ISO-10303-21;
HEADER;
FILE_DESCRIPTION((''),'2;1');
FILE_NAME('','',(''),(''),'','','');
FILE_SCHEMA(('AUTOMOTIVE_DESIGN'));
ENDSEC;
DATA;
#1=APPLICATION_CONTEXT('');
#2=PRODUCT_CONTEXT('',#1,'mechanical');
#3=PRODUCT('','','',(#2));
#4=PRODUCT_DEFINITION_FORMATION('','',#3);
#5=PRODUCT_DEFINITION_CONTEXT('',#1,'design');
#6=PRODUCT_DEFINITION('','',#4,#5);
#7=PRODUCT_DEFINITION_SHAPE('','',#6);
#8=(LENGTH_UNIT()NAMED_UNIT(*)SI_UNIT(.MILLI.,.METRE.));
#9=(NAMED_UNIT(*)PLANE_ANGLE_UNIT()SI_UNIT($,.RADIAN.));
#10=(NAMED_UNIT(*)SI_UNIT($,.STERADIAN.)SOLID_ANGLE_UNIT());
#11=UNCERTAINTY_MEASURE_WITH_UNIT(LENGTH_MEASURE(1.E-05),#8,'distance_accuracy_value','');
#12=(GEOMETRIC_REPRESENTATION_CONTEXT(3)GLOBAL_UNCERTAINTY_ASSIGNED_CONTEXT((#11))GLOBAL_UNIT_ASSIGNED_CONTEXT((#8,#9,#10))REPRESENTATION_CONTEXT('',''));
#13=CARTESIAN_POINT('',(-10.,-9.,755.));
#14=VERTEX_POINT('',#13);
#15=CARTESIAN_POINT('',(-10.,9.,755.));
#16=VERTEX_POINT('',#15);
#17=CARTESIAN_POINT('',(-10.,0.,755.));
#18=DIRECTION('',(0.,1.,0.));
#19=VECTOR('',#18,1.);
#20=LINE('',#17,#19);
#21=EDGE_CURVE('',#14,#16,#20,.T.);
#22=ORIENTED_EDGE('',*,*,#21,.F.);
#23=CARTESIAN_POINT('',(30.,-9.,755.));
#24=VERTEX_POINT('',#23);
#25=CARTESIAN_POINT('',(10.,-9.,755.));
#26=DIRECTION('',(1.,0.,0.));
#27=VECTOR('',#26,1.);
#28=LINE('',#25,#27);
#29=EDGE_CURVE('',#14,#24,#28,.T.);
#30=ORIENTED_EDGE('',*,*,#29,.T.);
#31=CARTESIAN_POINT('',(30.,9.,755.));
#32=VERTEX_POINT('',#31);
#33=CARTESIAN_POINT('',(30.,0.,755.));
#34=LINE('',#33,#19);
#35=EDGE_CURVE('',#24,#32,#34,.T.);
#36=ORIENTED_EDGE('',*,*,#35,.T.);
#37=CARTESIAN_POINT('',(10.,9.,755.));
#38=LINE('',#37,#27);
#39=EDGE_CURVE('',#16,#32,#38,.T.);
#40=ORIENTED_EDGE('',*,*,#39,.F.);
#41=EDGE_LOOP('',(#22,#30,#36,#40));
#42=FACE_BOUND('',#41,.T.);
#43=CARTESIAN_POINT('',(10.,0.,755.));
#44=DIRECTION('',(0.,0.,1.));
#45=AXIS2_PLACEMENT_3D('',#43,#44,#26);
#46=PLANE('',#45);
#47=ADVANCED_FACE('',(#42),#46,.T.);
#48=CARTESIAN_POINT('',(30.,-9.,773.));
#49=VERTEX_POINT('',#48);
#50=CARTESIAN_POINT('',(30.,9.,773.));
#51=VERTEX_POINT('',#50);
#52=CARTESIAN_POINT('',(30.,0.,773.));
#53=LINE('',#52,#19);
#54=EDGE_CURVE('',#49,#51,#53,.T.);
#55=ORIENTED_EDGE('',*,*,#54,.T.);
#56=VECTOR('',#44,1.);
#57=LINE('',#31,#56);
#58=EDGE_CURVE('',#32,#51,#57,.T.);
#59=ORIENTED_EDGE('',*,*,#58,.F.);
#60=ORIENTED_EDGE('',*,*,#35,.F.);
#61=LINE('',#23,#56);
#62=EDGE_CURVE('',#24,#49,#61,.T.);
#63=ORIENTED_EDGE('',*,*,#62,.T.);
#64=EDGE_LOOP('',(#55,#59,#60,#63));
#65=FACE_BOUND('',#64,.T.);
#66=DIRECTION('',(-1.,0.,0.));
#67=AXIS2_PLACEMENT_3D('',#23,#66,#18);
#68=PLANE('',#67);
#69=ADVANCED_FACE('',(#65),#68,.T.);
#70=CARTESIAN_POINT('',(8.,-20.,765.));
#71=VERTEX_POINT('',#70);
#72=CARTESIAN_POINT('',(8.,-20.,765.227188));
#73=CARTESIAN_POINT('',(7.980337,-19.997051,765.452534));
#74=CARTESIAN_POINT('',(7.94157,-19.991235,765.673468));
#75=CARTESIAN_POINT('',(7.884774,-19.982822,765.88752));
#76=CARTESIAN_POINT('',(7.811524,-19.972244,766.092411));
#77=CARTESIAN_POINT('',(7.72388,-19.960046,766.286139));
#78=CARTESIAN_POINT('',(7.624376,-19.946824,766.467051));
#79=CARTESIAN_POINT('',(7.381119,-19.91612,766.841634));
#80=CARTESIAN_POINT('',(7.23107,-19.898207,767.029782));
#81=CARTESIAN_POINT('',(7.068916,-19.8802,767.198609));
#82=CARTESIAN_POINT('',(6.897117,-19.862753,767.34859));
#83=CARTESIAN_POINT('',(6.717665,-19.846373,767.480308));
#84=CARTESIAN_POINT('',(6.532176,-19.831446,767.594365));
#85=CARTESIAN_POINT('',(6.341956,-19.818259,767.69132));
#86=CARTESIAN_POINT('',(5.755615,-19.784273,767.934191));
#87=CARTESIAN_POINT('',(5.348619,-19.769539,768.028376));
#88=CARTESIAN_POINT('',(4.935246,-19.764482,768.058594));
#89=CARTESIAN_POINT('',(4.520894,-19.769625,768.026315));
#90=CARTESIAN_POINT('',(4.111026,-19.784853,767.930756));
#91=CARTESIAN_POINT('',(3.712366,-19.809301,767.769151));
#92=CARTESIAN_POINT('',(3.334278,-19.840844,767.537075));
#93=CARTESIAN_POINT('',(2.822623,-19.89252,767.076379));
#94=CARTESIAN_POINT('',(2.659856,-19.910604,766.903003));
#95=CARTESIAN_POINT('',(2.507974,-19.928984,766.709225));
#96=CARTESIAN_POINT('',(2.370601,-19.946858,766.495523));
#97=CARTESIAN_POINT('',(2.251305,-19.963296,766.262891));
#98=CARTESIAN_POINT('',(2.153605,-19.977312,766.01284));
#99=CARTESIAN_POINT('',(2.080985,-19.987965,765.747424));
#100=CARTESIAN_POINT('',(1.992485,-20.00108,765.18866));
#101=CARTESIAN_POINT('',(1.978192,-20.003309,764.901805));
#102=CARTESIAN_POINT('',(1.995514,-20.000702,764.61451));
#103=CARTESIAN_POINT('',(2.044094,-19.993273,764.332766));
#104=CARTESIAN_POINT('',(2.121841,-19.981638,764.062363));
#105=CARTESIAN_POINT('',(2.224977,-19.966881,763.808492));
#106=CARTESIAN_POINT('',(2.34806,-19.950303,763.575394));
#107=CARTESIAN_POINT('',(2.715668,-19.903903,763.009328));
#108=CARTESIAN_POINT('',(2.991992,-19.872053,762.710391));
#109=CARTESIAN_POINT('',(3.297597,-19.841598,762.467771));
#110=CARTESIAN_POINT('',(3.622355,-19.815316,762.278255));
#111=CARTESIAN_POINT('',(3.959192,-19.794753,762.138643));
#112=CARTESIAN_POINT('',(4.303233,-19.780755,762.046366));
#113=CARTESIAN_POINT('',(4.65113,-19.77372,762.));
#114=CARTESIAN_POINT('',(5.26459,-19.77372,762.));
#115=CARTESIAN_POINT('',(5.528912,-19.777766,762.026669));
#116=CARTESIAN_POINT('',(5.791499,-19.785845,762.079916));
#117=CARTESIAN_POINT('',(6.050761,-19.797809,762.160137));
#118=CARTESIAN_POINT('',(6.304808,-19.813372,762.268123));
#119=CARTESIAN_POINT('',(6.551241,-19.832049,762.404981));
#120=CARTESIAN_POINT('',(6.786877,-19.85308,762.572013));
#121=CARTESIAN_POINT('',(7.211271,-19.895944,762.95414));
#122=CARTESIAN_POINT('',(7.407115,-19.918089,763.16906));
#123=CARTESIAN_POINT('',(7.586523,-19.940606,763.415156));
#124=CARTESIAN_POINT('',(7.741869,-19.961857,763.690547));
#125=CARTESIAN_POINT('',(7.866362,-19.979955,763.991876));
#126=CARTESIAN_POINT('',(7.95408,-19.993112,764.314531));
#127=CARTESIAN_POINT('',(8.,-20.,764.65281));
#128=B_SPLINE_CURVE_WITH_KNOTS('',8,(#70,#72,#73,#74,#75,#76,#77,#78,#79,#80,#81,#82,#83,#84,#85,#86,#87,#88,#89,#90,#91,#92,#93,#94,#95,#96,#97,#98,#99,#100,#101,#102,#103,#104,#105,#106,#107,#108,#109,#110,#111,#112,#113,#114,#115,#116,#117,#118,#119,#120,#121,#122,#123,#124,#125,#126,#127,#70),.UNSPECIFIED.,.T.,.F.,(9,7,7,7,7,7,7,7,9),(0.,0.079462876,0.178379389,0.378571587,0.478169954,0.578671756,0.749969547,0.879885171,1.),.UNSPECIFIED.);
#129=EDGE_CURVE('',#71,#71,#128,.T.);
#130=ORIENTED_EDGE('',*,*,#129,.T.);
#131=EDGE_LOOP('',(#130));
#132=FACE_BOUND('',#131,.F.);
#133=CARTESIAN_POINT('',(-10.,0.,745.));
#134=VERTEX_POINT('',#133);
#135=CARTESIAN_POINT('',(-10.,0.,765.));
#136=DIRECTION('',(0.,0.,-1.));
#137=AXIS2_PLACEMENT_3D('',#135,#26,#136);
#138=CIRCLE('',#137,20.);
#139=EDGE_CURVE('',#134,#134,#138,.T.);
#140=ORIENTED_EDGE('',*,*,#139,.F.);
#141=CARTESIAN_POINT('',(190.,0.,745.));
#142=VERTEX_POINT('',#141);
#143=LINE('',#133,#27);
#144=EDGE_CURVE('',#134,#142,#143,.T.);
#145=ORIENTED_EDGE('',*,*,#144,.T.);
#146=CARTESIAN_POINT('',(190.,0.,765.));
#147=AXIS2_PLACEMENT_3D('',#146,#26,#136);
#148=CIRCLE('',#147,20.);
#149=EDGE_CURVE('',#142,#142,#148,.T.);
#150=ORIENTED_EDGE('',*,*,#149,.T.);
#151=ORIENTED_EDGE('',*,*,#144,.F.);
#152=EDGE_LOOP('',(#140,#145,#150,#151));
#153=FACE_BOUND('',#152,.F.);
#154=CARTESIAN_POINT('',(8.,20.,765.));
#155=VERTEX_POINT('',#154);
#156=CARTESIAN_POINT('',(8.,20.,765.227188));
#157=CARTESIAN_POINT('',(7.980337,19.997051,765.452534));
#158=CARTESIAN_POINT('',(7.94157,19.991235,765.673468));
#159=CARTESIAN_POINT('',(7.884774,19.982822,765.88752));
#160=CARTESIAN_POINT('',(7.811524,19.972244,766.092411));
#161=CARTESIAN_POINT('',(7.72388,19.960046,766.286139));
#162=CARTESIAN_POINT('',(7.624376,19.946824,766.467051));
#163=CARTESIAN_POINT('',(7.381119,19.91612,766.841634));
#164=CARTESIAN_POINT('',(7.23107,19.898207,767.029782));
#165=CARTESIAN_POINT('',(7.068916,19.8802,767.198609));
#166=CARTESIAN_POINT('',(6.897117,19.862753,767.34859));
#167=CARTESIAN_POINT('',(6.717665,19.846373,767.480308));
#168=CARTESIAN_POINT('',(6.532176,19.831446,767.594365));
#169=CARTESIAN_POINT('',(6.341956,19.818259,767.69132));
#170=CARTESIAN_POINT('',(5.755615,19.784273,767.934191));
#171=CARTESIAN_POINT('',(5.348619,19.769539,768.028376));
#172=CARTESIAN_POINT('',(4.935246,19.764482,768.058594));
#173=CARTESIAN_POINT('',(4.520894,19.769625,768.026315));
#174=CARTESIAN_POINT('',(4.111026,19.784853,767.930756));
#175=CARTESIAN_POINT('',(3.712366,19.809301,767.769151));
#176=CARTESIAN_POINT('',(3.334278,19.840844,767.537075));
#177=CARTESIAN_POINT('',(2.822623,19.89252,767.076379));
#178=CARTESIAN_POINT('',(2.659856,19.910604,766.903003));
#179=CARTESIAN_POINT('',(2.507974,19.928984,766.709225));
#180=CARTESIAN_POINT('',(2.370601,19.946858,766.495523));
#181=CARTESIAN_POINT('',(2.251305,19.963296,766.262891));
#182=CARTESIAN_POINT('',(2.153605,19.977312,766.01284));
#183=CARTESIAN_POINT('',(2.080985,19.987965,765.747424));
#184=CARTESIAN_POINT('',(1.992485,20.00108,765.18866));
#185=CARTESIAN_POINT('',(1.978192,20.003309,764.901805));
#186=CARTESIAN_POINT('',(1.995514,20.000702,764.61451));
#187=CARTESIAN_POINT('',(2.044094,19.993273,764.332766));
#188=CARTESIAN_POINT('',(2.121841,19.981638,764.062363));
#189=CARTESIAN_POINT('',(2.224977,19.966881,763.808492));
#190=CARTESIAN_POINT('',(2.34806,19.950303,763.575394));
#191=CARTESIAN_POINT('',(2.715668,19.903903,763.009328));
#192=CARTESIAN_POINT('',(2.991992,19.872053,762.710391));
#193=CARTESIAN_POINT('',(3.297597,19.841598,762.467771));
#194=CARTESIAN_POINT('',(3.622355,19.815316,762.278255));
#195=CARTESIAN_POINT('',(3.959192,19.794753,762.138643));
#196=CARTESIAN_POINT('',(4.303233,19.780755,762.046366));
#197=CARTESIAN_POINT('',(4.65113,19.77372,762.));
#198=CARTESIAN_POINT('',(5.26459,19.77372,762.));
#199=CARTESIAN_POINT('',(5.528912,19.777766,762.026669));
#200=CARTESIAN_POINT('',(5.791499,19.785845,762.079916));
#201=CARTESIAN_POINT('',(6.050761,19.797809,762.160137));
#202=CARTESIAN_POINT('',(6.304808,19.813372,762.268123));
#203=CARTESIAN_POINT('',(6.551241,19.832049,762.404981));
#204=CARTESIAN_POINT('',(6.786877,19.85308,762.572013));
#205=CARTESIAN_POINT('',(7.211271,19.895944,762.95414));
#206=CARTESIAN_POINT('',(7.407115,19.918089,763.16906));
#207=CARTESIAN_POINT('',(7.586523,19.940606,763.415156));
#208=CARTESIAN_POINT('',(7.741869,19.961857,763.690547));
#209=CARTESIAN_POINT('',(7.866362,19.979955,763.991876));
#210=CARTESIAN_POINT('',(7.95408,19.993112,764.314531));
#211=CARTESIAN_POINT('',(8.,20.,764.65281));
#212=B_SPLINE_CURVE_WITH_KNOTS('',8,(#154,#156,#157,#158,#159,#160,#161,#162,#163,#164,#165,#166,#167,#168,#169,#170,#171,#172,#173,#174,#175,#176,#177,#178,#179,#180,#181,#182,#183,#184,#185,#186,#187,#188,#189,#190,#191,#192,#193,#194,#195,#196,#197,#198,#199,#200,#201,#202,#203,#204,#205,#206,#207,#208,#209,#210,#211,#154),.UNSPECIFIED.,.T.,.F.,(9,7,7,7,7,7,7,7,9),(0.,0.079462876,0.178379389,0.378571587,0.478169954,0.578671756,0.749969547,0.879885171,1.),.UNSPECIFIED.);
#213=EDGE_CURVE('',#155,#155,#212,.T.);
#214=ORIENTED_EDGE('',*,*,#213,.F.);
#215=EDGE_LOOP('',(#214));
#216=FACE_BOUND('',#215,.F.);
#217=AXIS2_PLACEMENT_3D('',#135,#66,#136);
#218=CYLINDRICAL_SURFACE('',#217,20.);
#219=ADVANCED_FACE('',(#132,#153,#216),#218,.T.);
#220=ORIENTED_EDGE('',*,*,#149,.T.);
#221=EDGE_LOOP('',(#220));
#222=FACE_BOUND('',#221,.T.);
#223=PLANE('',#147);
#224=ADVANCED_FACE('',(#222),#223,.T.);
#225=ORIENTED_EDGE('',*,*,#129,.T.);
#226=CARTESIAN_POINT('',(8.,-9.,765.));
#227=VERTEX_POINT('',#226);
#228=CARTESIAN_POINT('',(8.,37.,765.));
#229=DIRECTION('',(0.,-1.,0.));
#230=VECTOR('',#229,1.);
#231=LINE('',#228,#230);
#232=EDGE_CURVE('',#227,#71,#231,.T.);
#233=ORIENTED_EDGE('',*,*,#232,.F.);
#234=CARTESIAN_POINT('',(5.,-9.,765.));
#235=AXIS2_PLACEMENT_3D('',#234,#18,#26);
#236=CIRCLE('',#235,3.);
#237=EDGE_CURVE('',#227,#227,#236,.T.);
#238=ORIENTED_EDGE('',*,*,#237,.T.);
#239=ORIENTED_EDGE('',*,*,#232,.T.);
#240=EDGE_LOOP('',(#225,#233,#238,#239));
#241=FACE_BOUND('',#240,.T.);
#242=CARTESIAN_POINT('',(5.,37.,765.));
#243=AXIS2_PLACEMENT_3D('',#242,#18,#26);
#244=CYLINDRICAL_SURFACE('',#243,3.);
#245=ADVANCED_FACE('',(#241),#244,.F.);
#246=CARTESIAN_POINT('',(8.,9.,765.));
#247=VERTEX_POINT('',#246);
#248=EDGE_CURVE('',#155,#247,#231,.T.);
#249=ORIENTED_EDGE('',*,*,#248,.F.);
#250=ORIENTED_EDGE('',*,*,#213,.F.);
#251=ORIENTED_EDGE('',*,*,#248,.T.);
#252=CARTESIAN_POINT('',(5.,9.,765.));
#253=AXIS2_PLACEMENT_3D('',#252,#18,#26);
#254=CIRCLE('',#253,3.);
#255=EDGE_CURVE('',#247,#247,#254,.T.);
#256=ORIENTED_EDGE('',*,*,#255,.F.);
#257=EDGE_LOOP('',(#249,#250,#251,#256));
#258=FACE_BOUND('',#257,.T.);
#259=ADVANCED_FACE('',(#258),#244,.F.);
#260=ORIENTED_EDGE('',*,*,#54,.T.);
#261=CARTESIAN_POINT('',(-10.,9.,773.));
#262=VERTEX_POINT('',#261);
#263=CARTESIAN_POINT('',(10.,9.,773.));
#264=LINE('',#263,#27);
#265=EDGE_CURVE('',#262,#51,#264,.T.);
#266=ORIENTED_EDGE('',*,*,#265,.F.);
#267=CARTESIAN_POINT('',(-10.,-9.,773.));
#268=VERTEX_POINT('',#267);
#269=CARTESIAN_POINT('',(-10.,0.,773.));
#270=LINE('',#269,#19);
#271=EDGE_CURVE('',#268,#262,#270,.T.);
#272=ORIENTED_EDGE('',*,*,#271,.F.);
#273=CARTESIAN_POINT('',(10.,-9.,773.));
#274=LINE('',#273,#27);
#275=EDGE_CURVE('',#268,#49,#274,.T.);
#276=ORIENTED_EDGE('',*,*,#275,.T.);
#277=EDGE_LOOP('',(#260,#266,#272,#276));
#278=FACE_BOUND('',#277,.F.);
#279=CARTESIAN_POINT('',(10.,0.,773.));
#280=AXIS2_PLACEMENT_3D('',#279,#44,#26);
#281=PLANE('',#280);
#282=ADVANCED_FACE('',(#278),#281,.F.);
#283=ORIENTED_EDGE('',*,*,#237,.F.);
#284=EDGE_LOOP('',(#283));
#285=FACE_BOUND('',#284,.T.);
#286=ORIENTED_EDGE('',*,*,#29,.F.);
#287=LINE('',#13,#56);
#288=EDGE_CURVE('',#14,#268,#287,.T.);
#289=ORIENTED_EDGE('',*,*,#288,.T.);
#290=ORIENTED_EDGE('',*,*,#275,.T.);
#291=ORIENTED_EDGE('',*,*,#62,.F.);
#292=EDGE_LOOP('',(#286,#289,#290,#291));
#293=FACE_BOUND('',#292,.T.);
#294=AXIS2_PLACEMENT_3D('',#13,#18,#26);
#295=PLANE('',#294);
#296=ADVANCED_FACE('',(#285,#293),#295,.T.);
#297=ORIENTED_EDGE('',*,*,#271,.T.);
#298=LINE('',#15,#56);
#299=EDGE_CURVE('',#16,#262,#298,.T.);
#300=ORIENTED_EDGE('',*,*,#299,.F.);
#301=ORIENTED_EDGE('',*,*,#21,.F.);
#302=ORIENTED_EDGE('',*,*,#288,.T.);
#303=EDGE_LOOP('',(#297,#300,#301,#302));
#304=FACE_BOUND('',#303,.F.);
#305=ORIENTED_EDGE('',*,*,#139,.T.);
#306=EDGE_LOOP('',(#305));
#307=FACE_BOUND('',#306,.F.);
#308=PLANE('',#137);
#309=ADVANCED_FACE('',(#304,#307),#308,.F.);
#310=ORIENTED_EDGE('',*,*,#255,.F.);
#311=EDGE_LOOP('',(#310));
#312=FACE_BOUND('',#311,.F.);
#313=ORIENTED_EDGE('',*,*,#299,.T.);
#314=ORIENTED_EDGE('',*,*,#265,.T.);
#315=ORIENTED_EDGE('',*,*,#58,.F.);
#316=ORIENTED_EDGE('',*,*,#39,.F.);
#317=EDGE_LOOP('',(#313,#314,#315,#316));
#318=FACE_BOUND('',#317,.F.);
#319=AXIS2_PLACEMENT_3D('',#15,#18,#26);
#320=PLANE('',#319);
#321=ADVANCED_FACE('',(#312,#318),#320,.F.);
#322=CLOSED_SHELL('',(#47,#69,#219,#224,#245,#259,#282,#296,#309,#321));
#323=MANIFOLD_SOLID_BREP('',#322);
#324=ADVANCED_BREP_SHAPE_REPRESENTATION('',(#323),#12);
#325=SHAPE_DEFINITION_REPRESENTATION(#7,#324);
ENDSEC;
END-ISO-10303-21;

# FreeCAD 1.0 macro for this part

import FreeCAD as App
import Part
import Sketcher

V = App.Vector
Q = App.Units.Quantity

doc = App.newDocument("Part")
params = doc.addObject("Spreadsheet::Sheet", "Params")
for row, (alias, value) in enumerate([
    ("sketch1_diameter", "6 mm"),
    ("pad1_length", "60 mm"),
    ("sketch2_width", "40 mm"),
    ("sketch2_height", "18 mm"),
    ("pad2_length", "18 mm"),
    ("sketch3_diameter", "40 mm"),
    ("pad3_length", "200 mm"),
], start=1):
    params.set(f"A{row}", alias)
    params.set(f"B{row}", "=" + value)
    params.setAlias(f"B{row}", alias)

body = doc.addObject("PartDesign::Body", "Body")

sketch1 = doc.addObject("Sketcher::SketchObject", "Sketch")
body.addObject(sketch1)
sketch1.AttachmentSupport = (doc.XY_Plane, [""])
sketch1.MapMode = "FlatFace"
sketch1.addGeometry(Part.Circle(V(0, 0, 0), V(0, 0, 1), 3), False)
sketch1.addConstraint(Sketcher.Constraint("Coincident", 0, 3, -1, 1))
sketch1.addConstraint(Sketcher.Constraint("Diameter", 0, Q("6 mm")))
sketch1.setExpression("Constraints[1]", "Params.sketch1_diameter")
pad1 = doc.addObject("PartDesign::Pad", "Pad")
body.addObject(pad1)
pad1.Profile = sketch1
pad1.setExpression("Length", "Params.pad1_length")
body2 = doc.addObject("PartDesign::Body", "Body001")
doc.recompute()

body.Placement = App.Placement(V(0, 0, 0), App.Rotation(V(1, 0, 0), 90))
boolean = doc.addObject("PartDesign::Boolean", "Boolean")
body2.addObject(boolean)
boolean.Type = "Fuse"
boolean.addObjects([body])
body3 = doc.addObject("PartDesign::Body", "Body002")
doc.recompute()

body2.Placement = App.Placement(V(5, 37, 765), App.Rotation(V(0, 0, 1), 0))
boolean2 = doc.addObject("PartDesign::Boolean", "Boolean001")
body3.addObject(boolean2)
boolean2.Type = "Fuse"
boolean2.addObjects([body2])
body4 = doc.addObject("PartDesign::Body", "Body003")

sketch2 = doc.addObject("Sketcher::SketchObject", "Sketch001")
body4.addObject(sketch2)
sketch2.AttachmentSupport = (doc.getObject("XY_Plane003"), [""])
sketch2.MapMode = "FlatFace"
sketch2.AttachmentOffset = App.Placement(V(0, 0, 755), App.Rotation())
sketch2.addGeometry(Part.LineSegment(V(-10, 9, 0), V(-10, -9, 0)), False)
sketch2.addGeometry(Part.LineSegment(V(-10, -9, 0), V(30, -9, 0)), False)
sketch2.addGeometry(Part.LineSegment(V(30, -9, 0), V(30, 9, 0)), False)
sketch2.addGeometry(Part.LineSegment(V(30, 9, 0), V(-10, 9, 0)), False)
sketch2.addConstraint(Sketcher.Constraint("Coincident", 0, 2, 1, 1))
sketch2.addConstraint(Sketcher.Constraint("Coincident", 1, 2, 2, 1))
sketch2.addConstraint(Sketcher.Constraint("Coincident", 2, 2, 3, 1))
sketch2.addConstraint(Sketcher.Constraint("Coincident", 3, 2, 0, 1))
sketch2.addConstraint(Sketcher.Constraint("Vertical", 0))
sketch2.addConstraint(Sketcher.Constraint("Horizontal", 1))
sketch2.addConstraint(Sketcher.Constraint("Vertical", 2))
sketch2.addConstraint(Sketcher.Constraint("Horizontal", 3))
sketch2.addConstraint(Sketcher.Constraint("DistanceX", 1, 1, 1, 2, Q("40 mm")))
sketch2.addConstraint(Sketcher.Constraint("DistanceY", 0, 2, 0, 1, Q("18 mm")))
sketch2.addConstraint(Sketcher.Constraint("DistanceX", 0, 2, -1, 1, Q("10 mm")))
sketch2.addConstraint(Sketcher.Constraint("DistanceY", 0, 2, -1, 1, Q("9 mm")))
sketch2.setExpression("Constraints[8]", "Params.sketch2_width")
sketch2.setExpression("Constraints[9]", "Params.sketch2_height")
pad2 = doc.addObject("PartDesign::Pad", "Pad001")
body4.addObject(pad2)
pad2.Profile = sketch2
pad2.setExpression("Length", "Params.pad2_length")
body5 = doc.addObject("PartDesign::Body", "Body004")

sketch3 = doc.addObject("Sketcher::SketchObject", "Sketch002")
body5.addObject(sketch3)
sketch3.AttachmentSupport = (doc.getObject("XY_Plane004"), [""])
sketch3.MapMode = "FlatFace"
sketch3.addGeometry(Part.Circle(V(0, 0, 0), V(0, 0, 1), 20), False)
sketch3.addConstraint(Sketcher.Constraint("Coincident", 0, 3, -1, 1))
sketch3.addConstraint(Sketcher.Constraint("Diameter", 0, Q("40 mm")))
sketch3.setExpression("Constraints[1]", "Params.sketch3_diameter")
pad3 = doc.addObject("PartDesign::Pad", "Pad002")
body5.addObject(pad3)
pad3.Profile = sketch3
pad3.setExpression("Length", "Params.pad3_length")
body6 = doc.addObject("PartDesign::Body", "Body005")
doc.recompute()

body5.Placement = App.Placement(V(0, 0, 0), App.Rotation(V(0, 1, 0), 90))
boolean3 = doc.addObject("PartDesign::Boolean", "Boolean002")
body6.addObject(boolean3)
boolean3.Type = "Fuse"
boolean3.addObjects([body5])
body7 = doc.addObject("PartDesign::Body", "Body006")
doc.recompute()

body6.Placement = App.Placement(V(-10, 0, 765), App.Rotation(V(0, 0, 1), 0))
boolean4 = doc.addObject("PartDesign::Boolean", "Boolean003")
body7.addObject(boolean4)
boolean4.Type = "Fuse"
boolean4.addObjects([body6])
doc.recompute()

boolean5 = doc.addObject("PartDesign::Boolean", "Boolean004")
body7.addObject(boolean5)
boolean5.Type = "Cut"
boolean5.addObjects([body4])
doc.recompute()

boolean6 = doc.addObject("PartDesign::Boolean", "Boolean005")
body7.addObject(boolean6)
boolean6.Type = "Cut"
boolean6.addObjects([body3])

doc.recompute()
